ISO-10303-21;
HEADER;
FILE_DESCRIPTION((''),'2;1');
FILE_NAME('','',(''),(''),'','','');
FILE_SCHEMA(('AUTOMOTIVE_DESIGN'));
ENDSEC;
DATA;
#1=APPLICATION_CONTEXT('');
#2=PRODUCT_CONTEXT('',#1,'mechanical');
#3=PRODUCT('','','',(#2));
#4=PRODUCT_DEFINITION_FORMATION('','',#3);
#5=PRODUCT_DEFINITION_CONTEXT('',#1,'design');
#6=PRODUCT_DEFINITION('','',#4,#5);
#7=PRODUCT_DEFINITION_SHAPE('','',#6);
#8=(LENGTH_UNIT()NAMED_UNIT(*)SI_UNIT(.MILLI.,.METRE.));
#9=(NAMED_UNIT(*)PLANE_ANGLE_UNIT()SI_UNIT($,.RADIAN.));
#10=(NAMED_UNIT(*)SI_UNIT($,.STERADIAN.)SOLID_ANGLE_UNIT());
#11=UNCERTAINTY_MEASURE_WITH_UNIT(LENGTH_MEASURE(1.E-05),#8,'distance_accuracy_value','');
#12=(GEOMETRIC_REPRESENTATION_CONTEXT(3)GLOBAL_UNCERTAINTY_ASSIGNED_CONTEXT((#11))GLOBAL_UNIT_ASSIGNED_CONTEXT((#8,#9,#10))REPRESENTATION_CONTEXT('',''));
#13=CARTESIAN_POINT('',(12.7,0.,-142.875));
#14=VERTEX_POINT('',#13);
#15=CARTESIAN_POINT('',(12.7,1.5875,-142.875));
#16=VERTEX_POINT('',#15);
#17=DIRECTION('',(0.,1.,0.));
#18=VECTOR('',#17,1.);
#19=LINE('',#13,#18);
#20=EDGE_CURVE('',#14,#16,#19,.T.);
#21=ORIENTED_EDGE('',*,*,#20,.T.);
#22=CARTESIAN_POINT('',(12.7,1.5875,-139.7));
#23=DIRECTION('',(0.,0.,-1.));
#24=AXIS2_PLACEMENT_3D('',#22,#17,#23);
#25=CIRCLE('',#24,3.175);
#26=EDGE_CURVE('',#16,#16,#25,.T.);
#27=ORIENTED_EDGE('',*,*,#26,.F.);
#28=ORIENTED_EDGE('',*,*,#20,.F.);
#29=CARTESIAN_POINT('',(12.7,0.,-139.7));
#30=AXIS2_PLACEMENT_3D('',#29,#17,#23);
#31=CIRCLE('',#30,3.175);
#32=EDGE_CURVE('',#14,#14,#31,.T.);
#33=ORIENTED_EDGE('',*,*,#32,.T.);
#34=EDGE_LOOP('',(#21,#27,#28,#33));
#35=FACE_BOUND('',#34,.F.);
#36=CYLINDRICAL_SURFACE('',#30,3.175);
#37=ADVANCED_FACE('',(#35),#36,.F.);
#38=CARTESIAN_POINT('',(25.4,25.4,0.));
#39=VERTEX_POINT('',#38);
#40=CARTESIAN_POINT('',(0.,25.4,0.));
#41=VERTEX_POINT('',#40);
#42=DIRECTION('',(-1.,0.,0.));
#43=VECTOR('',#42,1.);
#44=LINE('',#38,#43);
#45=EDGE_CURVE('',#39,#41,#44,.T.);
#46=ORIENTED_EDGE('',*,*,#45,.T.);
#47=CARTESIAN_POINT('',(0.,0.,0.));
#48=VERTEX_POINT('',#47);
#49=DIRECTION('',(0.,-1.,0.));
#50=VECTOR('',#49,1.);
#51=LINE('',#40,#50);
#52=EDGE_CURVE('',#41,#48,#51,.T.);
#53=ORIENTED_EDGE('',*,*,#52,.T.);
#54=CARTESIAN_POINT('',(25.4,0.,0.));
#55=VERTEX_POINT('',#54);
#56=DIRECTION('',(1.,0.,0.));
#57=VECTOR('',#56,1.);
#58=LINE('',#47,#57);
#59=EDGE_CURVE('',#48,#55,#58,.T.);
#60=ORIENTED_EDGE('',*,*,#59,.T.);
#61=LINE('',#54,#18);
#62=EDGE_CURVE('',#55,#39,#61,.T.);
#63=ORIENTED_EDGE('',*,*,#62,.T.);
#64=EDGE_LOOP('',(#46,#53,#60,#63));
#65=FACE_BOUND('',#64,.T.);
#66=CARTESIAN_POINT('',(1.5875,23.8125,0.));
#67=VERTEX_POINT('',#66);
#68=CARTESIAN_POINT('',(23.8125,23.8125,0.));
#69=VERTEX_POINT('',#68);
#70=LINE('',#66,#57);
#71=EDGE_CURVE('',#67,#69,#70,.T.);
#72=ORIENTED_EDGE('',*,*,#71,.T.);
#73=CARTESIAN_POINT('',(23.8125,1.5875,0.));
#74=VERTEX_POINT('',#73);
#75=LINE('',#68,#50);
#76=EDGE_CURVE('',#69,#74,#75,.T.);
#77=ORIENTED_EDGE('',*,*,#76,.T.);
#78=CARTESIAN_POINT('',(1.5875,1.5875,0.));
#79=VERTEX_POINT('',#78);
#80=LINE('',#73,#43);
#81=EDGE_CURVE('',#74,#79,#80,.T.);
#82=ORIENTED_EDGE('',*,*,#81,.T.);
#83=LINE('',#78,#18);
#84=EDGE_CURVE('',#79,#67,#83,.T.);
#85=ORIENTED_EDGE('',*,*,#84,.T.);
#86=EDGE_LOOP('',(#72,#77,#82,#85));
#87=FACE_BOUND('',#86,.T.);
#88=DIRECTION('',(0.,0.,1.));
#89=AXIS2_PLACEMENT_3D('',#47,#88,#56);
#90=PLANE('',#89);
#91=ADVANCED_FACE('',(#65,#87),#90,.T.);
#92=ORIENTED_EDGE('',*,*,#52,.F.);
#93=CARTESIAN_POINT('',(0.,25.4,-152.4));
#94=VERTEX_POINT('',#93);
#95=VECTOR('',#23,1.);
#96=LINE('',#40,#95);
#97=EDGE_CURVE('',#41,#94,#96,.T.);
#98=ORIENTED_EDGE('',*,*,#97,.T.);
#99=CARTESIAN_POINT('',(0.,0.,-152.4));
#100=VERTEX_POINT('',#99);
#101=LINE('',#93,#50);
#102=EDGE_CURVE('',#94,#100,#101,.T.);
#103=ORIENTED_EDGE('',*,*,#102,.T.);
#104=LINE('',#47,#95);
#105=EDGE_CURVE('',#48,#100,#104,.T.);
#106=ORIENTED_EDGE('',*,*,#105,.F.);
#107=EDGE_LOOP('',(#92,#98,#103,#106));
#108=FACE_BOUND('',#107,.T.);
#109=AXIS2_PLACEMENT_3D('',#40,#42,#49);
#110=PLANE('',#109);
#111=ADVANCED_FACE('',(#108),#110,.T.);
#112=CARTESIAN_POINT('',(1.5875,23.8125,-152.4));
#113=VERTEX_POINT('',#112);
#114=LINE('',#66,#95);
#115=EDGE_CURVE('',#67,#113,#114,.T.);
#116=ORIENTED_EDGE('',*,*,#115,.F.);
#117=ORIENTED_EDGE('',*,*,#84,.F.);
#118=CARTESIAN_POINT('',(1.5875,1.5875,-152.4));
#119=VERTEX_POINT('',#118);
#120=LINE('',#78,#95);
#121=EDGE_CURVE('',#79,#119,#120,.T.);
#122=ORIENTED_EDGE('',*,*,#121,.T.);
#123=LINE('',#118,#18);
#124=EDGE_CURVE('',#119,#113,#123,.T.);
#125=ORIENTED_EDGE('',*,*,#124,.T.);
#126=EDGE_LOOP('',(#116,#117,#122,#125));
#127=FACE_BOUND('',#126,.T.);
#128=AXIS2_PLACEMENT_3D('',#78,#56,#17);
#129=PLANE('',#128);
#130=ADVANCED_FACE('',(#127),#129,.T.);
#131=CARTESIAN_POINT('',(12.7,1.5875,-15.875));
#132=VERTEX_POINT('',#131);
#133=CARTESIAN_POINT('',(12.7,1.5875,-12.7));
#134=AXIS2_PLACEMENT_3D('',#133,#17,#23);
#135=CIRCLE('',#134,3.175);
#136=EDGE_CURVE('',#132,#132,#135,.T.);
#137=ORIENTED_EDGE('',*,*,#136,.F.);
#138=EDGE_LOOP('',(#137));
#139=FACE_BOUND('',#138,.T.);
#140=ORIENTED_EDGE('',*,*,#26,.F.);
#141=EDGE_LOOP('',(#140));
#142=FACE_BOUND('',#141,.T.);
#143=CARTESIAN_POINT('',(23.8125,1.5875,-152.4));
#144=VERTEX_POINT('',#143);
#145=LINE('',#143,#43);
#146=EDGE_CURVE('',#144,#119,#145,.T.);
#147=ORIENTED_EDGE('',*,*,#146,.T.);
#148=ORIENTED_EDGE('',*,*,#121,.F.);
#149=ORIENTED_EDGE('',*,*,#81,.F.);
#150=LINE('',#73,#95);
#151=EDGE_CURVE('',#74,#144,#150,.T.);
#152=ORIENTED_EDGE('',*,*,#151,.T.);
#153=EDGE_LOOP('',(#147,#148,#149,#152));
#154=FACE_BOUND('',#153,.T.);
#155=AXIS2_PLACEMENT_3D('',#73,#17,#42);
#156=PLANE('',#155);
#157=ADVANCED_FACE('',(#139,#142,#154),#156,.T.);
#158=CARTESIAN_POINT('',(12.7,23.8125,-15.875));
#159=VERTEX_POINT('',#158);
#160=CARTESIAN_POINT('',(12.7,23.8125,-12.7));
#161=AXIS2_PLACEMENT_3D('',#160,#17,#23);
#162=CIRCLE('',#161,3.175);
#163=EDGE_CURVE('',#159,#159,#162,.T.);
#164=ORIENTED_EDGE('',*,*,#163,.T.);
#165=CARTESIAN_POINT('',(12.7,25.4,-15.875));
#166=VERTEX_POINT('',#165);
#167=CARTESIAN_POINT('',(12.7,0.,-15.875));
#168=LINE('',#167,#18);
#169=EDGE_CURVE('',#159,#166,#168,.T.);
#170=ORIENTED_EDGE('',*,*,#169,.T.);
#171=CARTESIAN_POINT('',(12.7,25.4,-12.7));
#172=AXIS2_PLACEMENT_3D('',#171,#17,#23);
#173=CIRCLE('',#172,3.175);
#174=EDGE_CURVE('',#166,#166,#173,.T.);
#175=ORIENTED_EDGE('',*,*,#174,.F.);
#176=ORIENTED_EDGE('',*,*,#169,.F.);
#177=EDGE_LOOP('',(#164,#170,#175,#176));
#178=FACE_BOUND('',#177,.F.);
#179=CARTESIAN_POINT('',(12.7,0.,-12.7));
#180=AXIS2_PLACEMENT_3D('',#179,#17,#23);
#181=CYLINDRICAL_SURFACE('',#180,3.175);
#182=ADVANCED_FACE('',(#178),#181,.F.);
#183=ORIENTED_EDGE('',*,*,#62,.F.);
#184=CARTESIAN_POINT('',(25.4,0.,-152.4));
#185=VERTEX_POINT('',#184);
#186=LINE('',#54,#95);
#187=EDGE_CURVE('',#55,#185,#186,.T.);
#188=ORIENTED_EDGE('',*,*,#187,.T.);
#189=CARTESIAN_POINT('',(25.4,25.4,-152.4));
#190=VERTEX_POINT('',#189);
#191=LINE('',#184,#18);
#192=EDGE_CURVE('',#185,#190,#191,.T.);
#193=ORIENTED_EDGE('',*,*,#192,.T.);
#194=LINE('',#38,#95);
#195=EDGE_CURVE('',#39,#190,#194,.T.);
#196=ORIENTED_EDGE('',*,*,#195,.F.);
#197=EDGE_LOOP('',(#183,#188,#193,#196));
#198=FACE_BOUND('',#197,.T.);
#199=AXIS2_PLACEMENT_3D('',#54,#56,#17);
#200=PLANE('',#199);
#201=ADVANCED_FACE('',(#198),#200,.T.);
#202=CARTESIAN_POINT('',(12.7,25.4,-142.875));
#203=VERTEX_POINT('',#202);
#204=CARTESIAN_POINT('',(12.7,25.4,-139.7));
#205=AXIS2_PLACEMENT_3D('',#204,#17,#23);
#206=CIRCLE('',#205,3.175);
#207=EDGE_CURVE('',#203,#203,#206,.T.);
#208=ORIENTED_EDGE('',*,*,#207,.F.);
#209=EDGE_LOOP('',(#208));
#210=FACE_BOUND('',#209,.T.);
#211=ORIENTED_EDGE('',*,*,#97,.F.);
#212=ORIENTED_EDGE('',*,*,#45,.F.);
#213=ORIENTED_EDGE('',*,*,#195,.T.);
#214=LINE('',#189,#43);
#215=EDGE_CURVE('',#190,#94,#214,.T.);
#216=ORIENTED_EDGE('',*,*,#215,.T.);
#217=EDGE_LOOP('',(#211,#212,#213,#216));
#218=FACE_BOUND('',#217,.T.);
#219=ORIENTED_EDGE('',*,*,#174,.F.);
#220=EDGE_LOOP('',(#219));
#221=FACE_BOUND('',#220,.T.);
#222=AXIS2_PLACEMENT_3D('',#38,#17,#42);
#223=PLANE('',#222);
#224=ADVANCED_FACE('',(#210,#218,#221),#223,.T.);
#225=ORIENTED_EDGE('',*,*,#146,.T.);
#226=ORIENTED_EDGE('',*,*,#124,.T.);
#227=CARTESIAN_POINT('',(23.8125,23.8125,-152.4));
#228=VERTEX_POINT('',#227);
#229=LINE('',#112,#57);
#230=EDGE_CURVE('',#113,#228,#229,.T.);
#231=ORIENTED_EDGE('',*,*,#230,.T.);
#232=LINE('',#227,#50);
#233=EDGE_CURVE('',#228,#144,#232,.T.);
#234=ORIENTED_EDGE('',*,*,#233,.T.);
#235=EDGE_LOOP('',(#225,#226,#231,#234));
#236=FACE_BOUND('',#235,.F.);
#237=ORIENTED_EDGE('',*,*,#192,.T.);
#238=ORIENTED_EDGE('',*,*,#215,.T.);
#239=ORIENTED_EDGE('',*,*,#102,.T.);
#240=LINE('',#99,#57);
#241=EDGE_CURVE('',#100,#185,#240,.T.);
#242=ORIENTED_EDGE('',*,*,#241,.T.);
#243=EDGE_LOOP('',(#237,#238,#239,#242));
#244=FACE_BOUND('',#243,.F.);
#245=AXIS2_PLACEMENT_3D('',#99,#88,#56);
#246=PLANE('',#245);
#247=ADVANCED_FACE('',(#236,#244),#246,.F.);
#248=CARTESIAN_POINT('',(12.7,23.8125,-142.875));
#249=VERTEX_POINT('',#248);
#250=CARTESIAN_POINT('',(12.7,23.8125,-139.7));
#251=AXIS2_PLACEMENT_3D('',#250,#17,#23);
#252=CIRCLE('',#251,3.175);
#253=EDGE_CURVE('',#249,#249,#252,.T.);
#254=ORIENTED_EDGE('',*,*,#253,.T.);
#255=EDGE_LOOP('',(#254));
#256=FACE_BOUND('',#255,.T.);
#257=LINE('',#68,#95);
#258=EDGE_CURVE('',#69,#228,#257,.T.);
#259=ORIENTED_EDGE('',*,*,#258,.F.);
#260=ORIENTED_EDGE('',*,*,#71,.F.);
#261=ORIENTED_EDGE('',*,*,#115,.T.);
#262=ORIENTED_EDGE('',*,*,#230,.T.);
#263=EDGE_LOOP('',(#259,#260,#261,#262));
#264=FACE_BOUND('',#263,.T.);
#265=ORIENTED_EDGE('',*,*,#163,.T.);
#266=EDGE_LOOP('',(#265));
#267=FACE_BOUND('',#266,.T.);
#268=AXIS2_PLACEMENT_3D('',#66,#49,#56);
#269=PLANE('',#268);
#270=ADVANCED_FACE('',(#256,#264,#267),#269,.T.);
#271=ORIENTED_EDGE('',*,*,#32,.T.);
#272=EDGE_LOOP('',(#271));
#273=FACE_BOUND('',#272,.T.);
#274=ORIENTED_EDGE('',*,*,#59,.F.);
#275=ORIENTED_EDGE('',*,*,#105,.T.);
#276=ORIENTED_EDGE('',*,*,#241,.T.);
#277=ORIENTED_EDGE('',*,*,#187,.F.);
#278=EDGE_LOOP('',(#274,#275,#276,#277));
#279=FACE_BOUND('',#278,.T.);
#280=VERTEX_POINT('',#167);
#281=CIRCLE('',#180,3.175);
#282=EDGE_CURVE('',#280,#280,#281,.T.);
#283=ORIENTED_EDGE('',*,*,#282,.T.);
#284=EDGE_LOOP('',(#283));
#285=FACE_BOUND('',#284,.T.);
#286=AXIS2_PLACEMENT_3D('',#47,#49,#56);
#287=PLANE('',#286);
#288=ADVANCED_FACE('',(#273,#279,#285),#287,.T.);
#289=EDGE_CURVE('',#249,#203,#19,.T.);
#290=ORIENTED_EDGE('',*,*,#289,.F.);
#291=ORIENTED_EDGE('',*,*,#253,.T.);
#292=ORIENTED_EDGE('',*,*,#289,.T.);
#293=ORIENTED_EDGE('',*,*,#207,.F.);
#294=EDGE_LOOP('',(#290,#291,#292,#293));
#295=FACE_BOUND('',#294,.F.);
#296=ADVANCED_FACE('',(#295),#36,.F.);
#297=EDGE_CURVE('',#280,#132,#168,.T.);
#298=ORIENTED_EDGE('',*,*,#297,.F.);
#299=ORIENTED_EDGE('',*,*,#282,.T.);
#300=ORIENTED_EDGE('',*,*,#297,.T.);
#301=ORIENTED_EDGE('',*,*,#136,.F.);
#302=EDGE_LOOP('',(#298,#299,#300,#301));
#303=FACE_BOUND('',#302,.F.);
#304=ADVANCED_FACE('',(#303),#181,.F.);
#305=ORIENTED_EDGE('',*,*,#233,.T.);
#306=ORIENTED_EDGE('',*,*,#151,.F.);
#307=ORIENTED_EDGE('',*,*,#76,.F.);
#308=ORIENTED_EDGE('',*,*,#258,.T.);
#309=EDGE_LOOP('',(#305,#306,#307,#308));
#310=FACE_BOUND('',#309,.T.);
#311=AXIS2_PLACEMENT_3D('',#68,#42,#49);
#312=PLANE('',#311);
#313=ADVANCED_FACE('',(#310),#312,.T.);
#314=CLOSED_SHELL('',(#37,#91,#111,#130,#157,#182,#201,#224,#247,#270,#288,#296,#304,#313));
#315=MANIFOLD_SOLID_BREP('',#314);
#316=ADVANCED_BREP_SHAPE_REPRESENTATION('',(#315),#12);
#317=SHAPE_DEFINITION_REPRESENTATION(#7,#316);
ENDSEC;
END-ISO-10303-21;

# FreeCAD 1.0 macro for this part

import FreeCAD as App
import Part
import Sketcher

V = App.Vector
Q = App.Units.Quantity


def add_polygon(sketch, points):
    """Adds a closed chain of lines whose ends are joined by coincident constraints."""
    first, n = sketch.GeometryCount, len(points)
    for a, b in zip(points, points[1:] + points[:1]):
        sketch.addGeometry(Part.LineSegment(App.Vector(*a, 0), App.Vector(*b, 0)), False)
    for i in range(n):
        sketch.addConstraint(Sketcher.Constraint("Coincident", first + i, 2, first + (i + 1) % n, 1))

doc = App.newDocument("Part")
body = doc.addObject("PartDesign::Body", "Body")

sketch1 = doc.addObject("Sketcher::SketchObject", "Sketch")
body.addObject(sketch1)
sketch1.AttachmentSupport = (doc.XY_Plane, [""])
sketch1.MapMode = "FlatFace"
add_polygon(sketch1, [(0, 25), (0, 0), (25, 0), (25, 25)])
add_polygon(sketch1, [(2, 2), (2, 24), (24, 24), (24, 2)])
sketch1.addConstraint([
    Sketcher.Constraint("Vertical", 0),
    Sketcher.Constraint("Horizontal", 1),
    Sketcher.Constraint("Vertical", 2),
    Sketcher.Constraint("Horizontal", 3),
    Sketcher.Constraint("Vertical", 4),
    Sketcher.Constraint("Horizontal", 5),
    Sketcher.Constraint("Vertical", 6),
    Sketcher.Constraint("Horizontal", 7),
    Sketcher.Constraint("Coincident", 0, 2, -1, 1),
    Sketcher.Constraint("Equal", 3, 0),
    Sketcher.Constraint("Equal", 7, 4),
    Sketcher.Constraint("DistanceX", 1, 1, 1, 2, Q("1 in")),
    Sketcher.Constraint("DistanceX", -1, 1, 4, 2, Q("0.0625 in")),
    Sketcher.Constraint("DistanceY", -1, 1, 6, 2, Q("0.0625 in")),
    Sketcher.Constraint("DistanceY", 4, 2, 3, 2, Q("0.0625 in")),
])
pad1 = doc.addObject("PartDesign::Pad", "Pad")
body.addObject(pad1)
pad1.Profile = sketch1
pad1.Length = Q("6 in")
pad1.Reversed = True

sketch2 = doc.addObject("Sketcher::SketchObject", "Sketch001")
body.addObject(sketch2)
sketch2.AttachmentSupport = (doc.XZ_Plane, [""])
sketch2.MapMode = "FlatFace"
sketch2.addGeometry([
    Part.Circle(V(12.7, -12.7, 0), V(0, 0, 1), 3.2),
    Part.Circle(V(12.7, -139.7, 0), V(0, 0, 1), 3.2),
], False)
sketch2.addConstraint([
    Sketcher.Constraint("Equal", 0, 1),
    Sketcher.Constraint("Vertical", 0, 3, 1, 3),
    Sketcher.Constraint("Diameter", 0, Q("0.25 in")),
    Sketcher.Constraint("DistanceY", 1, 3, 0, 3, Q("5 in")),
    Sketcher.Constraint("DistanceX", -1, 1, 0, 3, Q("0.5 in")),
    Sketcher.Constraint("DistanceY", 0, 3, -1, 1, Q("0.5 in")),
])
doc.recompute()
hole = doc.addObject("PartDesign::Hole", "Hole")
body.addObject(hole)
hole.Profile = sketch2
hole.ThreadType = "None"
hole.Diameter = Q("0.25 in")
hole.DepthType = "Dimension"
hole.Depth = Q("1 in")
hole.DrillPoint = "Angled"
hole.DrillPointAngle = 118

doc.recompute()
